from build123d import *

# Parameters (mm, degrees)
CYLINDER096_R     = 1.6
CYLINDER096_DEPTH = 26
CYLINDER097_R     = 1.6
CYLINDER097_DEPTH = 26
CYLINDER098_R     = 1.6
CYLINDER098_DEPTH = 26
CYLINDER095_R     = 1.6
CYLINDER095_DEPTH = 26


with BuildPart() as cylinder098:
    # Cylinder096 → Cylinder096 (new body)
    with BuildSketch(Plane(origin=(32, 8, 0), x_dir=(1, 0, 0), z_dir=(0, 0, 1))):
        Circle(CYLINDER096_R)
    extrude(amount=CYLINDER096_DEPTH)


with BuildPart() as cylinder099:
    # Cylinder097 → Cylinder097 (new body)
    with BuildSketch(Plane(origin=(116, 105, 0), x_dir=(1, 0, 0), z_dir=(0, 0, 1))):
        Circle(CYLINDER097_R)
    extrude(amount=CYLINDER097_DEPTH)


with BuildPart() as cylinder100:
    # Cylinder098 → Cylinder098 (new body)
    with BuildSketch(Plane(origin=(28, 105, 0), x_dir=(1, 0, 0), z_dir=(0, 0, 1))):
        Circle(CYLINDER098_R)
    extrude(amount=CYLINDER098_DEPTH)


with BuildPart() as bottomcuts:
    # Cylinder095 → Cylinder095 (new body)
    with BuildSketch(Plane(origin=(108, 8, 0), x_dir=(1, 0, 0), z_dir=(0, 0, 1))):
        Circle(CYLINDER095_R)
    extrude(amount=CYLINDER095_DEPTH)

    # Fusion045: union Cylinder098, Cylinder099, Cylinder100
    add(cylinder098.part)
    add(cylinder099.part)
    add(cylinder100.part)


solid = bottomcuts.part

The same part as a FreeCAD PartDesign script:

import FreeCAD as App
import Part
import Sketcher
from FreeCAD import Vector
Q = App.Units.Quantity

doc = App.newDocument("Part")
params = doc.addObject("Spreadsheet::Sheet", "Params")
for row, (alias, value) in enumerate([
    ("sketch1_diameter", "3.2 mm"),
    ("pad1_length", "26 mm"),
    ("sketch2_diameter", "3.2 mm"),
    ("pad2_length", "26 mm"),
    ("sketch3_diameter", "3.2 mm"),
    ("pad3_length", "26 mm"),
    ("sketch4_diameter", "3.2 mm"),
    ("pad4_length", "26 mm"),
], start=1):
    params.set(f"A{row}", alias)
    params.set(f"B{row}", "=" + value)
    params.setAlias(f"B{row}", alias)

body = doc.addObject("PartDesign::Body", "Body")

sketch1 = body.newObject("Sketcher::SketchObject", "Sketch")
sketch1.AttachmentSupport = (doc.getObject("XY_Plane"), [""])
sketch1.MapMode = "FlatFace"
sketch1.addGeometry(Part.Circle(Vector(32, 8, 0), Vector(0, 0, 1), 1.6), False)
sketch1.addConstraint([
    Sketcher.Constraint("Diameter", 0, Q("3.2 mm")),
    Sketcher.Constraint("DistanceX", -1, 1, 0, 3, Q("32 mm")),
    Sketcher.Constraint("DistanceY", -1, 1, 0, 3, Q("8 mm")),
])
sketch1.setExpression("Constraints[0]", "Params.sketch1_diameter")
pad1 = body.newObject("PartDesign::Pad", "Pad")
pad1.Profile = sketch1
pad1.setExpression("Length", "Params.pad1_length")
body2 = doc.addObject("PartDesign::Body", "Body001")

sketch2 = body2.newObject("Sketcher::SketchObject", "Sketch001")
sketch2.AttachmentSupport = (doc.getObject("XY_Plane001"), [""])
sketch2.MapMode = "FlatFace"
sketch2.addGeometry(Part.Circle(Vector(116, 105, 0), Vector(0, 0, 1), 1.6), False)
sketch2.addConstraint([
    Sketcher.Constraint("Diameter", 0, Q("3.2 mm")),
    Sketcher.Constraint("DistanceX", -1, 1, 0, 3, Q("116 mm")),
    Sketcher.Constraint("DistanceY", -1, 1, 0, 3, Q("105 mm")),
])
sketch2.setExpression("Constraints[0]", "Params.sketch2_diameter")
pad2 = body2.newObject("PartDesign::Pad", "Pad001")
pad2.Profile = sketch2
pad2.setExpression("Length", "Params.pad2_length")
body3 = doc.addObject("PartDesign::Body", "Body002")

sketch3 = body3.newObject("Sketcher::SketchObject", "Sketch002")
sketch3.AttachmentSupport = (doc.getObject("XY_Plane002"), [""])
sketch3.MapMode = "FlatFace"
sketch3.addGeometry(Part.Circle(Vector(28, 105, 0), Vector(0, 0, 1), 1.6), False)
sketch3.addConstraint([
    Sketcher.Constraint("Diameter", 0, Q("3.2 mm")),
    Sketcher.Constraint("DistanceX", -1, 1, 0, 3, Q("28 mm")),
    Sketcher.Constraint("DistanceY", -1, 1, 0, 3, Q("105 mm")),
])
sketch3.setExpression("Constraints[0]", "Params.sketch3_diameter")
pad3 = body3.newObject("PartDesign::Pad", "Pad002")
pad3.Profile = sketch3
pad3.setExpression("Length", "Params.pad3_length")
body4 = doc.addObject("PartDesign::Body", "Body003")
body4.AllowCompound = True

sketch4 = body4.newObject("Sketcher::SketchObject", "Sketch003")
sketch4.AttachmentSupport = (doc.getObject("XY_Plane003"), [""])
sketch4.MapMode = "FlatFace"
sketch4.addGeometry(Part.Circle(Vector(108, 8, 0), Vector(0, 0, 1), 1.6), False)
sketch4.addConstraint([
    Sketcher.Constraint("Diameter", 0, Q("3.2 mm")),
    Sketcher.Constraint("DistanceX", -1, 1, 0, 3, Q("108 mm")),
    Sketcher.Constraint("DistanceY", -1, 1, 0, 3, Q("8 mm")),
])
sketch4.setExpression("Constraints[0]", "Params.sketch4_diameter")
pad4 = body4.newObject("PartDesign::Pad", "Pad003")
pad4.Profile = sketch4
pad4.setExpression("Length", "Params.pad4_length")
doc.recompute()

boolean = body4.newObject("PartDesign::Boolean", "Boolean")
boolean.Type = "Fuse"
boolean.addObjects([body])
doc.recompute()

boolean2 = body4.newObject("PartDesign::Boolean", "Boolean001")
boolean2.Type = "Fuse"
boolean2.addObjects([body2])
doc.recompute()

boolean3 = body4.newObject("PartDesign::Boolean", "Boolean002")
boolean3.Type = "Fuse"
boolean3.addObjects([body3])

doc.recompute()
